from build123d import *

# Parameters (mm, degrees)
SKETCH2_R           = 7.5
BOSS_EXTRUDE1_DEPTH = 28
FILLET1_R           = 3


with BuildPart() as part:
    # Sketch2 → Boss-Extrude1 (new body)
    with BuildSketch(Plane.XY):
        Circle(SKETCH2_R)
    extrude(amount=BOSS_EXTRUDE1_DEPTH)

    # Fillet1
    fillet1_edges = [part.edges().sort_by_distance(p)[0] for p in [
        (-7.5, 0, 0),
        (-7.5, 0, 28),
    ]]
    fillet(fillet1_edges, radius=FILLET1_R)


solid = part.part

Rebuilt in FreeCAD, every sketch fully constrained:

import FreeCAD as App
import Part
import Sketcher

V = App.Vector
Q = App.Units.Quantity


def edges_at(feature, points):
    """Names of the edges that pass closest to the given points."""
    edges = feature.Shape.Edges
    near = lambda p: min(range(len(edges)), key=lambda i: edges[i].distToShape(Part.Vertex(*p))[0])
    return sorted({f"Edge{near(p) + 1}" for p in points})

doc = App.newDocument("Part")
body = doc.addObject("PartDesign::Body", "Body")

# Sketch on XY plane
sketch1 = body.newObject("Sketcher::SketchObject", "Sketch")
sketch1.AttachmentSupport = (doc.getObject("XY_Plane"), [""])
sketch1.MapMode = "FlatFace"
sketch1.addGeometry(Part.Circle(V(0, 0, 0), V(0, 0, 1), 8), False)
sketch1.addConstraint([
    Sketcher.Constraint("Coincident", 0, 3, -1, 1),
    Sketcher.Constraint("Diameter", 0, Q("15 mm")),
])
pad1 = body.newObject("PartDesign::Pad", "Pad")
pad1.Profile = sketch1
pad1.Length = 28
doc.recompute()

fillet = body.newObject("PartDesign::Fillet", "Fillet")
fillet.Base = (pad1, edges_at(pad1, [(-7.5, 0, 0), (-7.5, 0, 28)]))
fillet.Radius = 3

doc.recompute()
